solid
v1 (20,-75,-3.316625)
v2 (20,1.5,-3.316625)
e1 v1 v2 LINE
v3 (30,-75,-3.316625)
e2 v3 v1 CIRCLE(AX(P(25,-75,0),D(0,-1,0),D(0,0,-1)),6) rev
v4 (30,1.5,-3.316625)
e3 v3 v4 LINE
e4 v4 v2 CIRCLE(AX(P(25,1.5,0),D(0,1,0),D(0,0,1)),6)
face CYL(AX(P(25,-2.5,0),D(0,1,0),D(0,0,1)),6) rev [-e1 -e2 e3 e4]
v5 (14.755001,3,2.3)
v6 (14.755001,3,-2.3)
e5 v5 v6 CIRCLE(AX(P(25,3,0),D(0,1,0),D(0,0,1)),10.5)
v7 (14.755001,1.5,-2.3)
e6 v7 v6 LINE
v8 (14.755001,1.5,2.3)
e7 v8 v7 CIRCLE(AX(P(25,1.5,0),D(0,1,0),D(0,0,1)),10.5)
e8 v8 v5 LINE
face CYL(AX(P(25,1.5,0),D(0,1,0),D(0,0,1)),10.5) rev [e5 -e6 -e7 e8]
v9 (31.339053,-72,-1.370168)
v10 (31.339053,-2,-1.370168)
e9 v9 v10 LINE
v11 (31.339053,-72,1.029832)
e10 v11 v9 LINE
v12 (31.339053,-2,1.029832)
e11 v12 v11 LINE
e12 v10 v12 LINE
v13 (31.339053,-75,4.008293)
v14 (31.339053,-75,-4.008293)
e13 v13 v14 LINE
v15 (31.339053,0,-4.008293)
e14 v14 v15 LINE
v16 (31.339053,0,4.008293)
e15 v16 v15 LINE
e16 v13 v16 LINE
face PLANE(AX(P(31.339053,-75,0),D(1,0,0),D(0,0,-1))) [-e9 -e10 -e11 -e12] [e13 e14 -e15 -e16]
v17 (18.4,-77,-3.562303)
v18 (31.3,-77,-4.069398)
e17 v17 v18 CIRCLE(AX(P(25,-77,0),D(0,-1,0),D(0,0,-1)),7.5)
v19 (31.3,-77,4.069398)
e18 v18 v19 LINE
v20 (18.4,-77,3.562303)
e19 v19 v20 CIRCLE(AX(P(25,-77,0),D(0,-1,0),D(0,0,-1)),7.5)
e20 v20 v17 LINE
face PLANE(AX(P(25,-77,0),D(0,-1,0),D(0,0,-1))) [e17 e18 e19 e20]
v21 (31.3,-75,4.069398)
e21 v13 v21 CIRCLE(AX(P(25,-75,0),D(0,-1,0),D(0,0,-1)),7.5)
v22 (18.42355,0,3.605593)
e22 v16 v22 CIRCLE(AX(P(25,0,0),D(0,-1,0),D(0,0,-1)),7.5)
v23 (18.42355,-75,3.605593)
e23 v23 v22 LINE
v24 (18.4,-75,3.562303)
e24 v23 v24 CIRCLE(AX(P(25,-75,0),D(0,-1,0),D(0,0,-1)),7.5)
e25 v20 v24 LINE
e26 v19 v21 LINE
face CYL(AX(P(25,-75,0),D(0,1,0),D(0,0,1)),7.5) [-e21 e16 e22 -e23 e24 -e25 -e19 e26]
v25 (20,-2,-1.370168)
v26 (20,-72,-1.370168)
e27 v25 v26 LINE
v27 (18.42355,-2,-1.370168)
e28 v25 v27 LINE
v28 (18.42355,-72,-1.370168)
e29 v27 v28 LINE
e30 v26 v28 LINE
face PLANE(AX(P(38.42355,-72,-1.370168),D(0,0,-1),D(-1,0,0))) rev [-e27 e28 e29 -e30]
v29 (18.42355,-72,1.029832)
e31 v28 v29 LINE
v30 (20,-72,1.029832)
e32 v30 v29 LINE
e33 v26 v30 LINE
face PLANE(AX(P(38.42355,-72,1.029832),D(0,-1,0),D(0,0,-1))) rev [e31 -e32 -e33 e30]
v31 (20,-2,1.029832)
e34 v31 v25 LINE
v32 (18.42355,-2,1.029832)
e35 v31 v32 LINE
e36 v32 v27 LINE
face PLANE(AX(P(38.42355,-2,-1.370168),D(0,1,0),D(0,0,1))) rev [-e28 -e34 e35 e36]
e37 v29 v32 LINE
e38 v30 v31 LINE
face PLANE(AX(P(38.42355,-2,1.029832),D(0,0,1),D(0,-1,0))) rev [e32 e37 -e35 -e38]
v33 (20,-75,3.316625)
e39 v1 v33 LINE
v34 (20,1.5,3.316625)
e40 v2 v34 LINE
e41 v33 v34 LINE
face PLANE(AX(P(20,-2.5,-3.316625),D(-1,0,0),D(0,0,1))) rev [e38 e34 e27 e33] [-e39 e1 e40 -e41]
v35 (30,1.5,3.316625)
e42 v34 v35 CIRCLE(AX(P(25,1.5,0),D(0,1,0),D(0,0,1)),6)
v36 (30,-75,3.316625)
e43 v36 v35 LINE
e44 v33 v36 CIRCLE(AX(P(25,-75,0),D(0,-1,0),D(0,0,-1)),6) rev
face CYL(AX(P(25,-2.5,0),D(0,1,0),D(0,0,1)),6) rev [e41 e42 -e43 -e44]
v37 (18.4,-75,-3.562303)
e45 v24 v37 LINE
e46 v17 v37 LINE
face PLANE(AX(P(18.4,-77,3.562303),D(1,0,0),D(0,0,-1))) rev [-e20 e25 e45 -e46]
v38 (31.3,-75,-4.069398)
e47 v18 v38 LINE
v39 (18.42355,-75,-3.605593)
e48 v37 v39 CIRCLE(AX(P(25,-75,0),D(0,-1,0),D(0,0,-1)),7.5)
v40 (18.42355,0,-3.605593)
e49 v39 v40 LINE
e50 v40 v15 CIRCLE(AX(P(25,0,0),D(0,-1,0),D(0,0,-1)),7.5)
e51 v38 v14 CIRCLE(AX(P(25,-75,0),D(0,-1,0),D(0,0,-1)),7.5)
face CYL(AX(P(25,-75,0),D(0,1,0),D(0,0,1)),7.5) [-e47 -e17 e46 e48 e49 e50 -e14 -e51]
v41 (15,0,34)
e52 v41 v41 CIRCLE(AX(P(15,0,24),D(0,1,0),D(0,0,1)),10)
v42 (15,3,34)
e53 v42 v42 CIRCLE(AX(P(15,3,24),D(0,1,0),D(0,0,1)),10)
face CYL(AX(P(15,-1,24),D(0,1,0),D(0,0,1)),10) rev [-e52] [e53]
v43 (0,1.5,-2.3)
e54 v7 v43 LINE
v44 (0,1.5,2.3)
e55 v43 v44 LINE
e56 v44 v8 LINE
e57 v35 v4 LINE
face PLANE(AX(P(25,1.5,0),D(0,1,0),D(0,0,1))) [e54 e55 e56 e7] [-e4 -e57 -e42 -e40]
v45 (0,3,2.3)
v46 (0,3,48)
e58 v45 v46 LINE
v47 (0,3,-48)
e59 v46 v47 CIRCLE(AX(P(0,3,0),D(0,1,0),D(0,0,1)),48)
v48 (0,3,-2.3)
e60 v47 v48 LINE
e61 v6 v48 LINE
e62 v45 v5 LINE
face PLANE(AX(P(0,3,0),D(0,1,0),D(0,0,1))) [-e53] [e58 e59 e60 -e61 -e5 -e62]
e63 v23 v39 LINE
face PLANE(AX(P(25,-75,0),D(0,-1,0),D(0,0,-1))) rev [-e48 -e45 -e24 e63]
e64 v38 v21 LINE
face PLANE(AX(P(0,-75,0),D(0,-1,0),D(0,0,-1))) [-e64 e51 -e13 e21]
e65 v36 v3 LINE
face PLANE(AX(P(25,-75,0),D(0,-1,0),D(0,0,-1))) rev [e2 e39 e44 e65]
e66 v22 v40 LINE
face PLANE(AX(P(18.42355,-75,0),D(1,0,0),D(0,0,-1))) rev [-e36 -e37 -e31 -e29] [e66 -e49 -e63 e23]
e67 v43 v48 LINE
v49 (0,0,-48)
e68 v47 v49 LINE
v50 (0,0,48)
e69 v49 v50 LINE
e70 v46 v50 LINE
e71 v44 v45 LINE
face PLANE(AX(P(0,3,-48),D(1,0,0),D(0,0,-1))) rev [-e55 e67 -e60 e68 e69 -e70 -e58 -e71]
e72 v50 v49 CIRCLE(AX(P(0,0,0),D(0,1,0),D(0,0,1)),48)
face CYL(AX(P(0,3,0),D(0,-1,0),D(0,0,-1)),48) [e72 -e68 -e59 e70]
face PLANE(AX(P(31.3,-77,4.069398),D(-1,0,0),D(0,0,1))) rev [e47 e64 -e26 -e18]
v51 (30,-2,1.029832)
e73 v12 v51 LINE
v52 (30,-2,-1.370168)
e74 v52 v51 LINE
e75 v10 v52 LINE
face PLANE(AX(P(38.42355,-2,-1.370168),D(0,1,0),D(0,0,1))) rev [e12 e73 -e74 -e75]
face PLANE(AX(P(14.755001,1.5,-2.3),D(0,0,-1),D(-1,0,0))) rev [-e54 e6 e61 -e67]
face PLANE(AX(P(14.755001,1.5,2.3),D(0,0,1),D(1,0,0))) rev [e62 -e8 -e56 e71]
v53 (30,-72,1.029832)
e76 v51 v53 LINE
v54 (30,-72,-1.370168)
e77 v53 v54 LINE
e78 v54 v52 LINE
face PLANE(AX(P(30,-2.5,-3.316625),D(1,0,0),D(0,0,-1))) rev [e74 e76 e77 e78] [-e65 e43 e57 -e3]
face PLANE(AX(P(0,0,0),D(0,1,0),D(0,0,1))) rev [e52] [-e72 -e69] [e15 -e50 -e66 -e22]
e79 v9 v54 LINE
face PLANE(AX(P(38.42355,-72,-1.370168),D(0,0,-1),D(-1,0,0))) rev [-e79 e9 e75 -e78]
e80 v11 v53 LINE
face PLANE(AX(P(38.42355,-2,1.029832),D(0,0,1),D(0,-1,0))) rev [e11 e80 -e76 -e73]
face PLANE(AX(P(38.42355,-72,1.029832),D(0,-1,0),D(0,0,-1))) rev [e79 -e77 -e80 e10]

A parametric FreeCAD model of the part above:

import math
import FreeCAD as App
import Part
import Sketcher
from FreeCAD import Vector

doc = App.newDocument("Part")
params = doc.addObject("Spreadsheet::Sheet", "Params")
for row, (alias, value) in enumerate([
    ("sketch1_radius", "48 mm"),
    ("pad1_length", "3 mm"),
    ("sketch2_radius", "10.5 mm"),
    ("sketch2_height", "4.6 mm"),
    ("pocket1_length", "1.5 mm"),
    ("sketch3_radius", "6 mm"),
    ("pocket2_length", "4 mm"),
    ("sketch4_radius", "6 mm"),
    ("sketch4_radius2", "7.5 mm"),
    ("pad2_length", "75 mm"),
    ("sketch5_radius", "7.5 mm"),
    ("pad3_length", "2 mm"),
    ("sketch6_width", "70 mm"),
    ("sketch6_height", "2.4 mm"),
    ("pocket3_length", "20 mm"),
    ("sketch7_diameter", "20 mm"),
    ("pocket4_length", "4 mm"),
], start=1):
    params.set(f"A{row}", alias)
    params.set(f"B{row}", "=" + value)
    params.setAlias(f"B{row}", alias)

body = doc.addObject("PartDesign::Body", "Body")

# Sketch on XZ plane
sketch1 = body.newObject("Sketcher::SketchObject", "Sketch")
sketch1.AttachmentSupport = (doc.getObject("XZ_Plane"), [""])
sketch1.MapMode = "FlatFace"
sketch1.addGeometry(Part.LineSegment(Vector(0, -48, 0), Vector(0, 48, 0)), False)
sketch1.addGeometry(Part.ArcOfCircle(Part.Circle(Vector(0, 0, 0), Vector(0, 0, 1), 48), math.radians(-90), math.radians(90)), False)
sketch1.addConstraint(Sketcher.Constraint("Coincident", 0, 1, 1, 1))
sketch1.addConstraint(Sketcher.Constraint("Coincident", 1, 2, 0, 2))
sketch1.addConstraint(Sketcher.Constraint("Vertical", 0))
sketch1.addConstraint(Sketcher.Constraint("Coincident", 1, 3, -1, 1))
sketch1.addConstraint(Sketcher.Constraint("PointOnObject", 0, 1, -2))
sketch1.addConstraint(Sketcher.Constraint("Radius", 1, 48.0))
sketch1.setExpression("Constraints[5]", "Params.sketch1_radius")
pad1 = body.newObject("PartDesign::Pad", "Pad")
pad1.Profile = sketch1
pad1.setExpression("Length", "Params.pad1_length")
pad1.Reversed = True

# Sketch on XZ plane
sketch2 = body.newObject("Sketcher::SketchObject", "Sketch001")
sketch2.AttachmentSupport = (doc.getObject("XZ_Plane"), [""])
sketch2.MapMode = "FlatFace"
sketch2.AttachmentOffset = App.Placement(Vector(0, 0, -3), App.Rotation())
sketch2.addGeometry(Part.LineSegment(Vector(14.8, -2.3, 0), Vector(0, -2.3, 0)), False)
sketch2.addGeometry(Part.LineSegment(Vector(0, -2.3, 0), Vector(0, 2.3, 0)), False)
sketch2.addGeometry(Part.LineSegment(Vector(0, 2.3, 0), Vector(14.8, 2.3, 0)), False)
sketch2.addGeometry(Part.ArcOfCircle(Part.Circle(Vector(25, 0, 0), Vector(0, 0, 1), 10.5), math.radians(-167), math.radians(167)), False)
sketch2.addConstraint(Sketcher.Constraint("Coincident", 0, 2, 1, 1))
sketch2.addConstraint(Sketcher.Constraint("Coincident", 1, 2, 2, 1))
sketch2.addConstraint(Sketcher.Constraint("Coincident", 2, 2, 3, 2))
sketch2.addConstraint(Sketcher.Constraint("Coincident", 3, 1, 0, 1))
sketch2.addConstraint(Sketcher.Constraint("Horizontal", 0))
sketch2.addConstraint(Sketcher.Constraint("Vertical", 1))
sketch2.addConstraint(Sketcher.Constraint("Horizontal", 2))
sketch2.addConstraint(Sketcher.Constraint("Symmetric", 0, 2, 1, 2, -1, 1))
sketch2.addConstraint(Sketcher.Constraint("PointOnObject", 3, 3, -1))
sketch2.addConstraint(Sketcher.Constraint("Radius", 3, 10.5))
sketch2.addConstraint(Sketcher.Constraint("DistanceY", 1, 1, 1, 2, 4.6))
sketch2.addConstraint(Sketcher.Constraint("DistanceX", -1, 1, 3, 3, 25.0))
sketch2.setExpression("Constraints[9]", "Params.sketch2_radius")
sketch2.setExpression("Constraints[10]", "Params.sketch2_height")
pocket1 = body.newObject("PartDesign::Pocket", "Pocket")
pocket1.Profile = sketch2
pocket1.setExpression("Length", "Params.pocket1_length")
pocket1.Reversed = True

# Sketch on XZ plane
sketch3 = body.newObject("Sketcher::SketchObject", "Sketch002")
sketch3.AttachmentSupport = (doc.getObject("XZ_Plane"), [""])
sketch3.MapMode = "FlatFace"
sketch3.AttachmentOffset = App.Placement(Vector(0, 0, -1.5), App.Rotation())
sketch3.addGeometry(Part.LineSegment(Vector(20, -3, 0), Vector(20, 3, 0)), False)
sketch3.addGeometry(Part.ArcOfCircle(Part.Circle(Vector(25, 0, 0), Vector(0, 0, 1), 6), math.radians(34), math.radians(146)), False)
sketch3.addGeometry(Part.LineSegment(Vector(30, 3, 0), Vector(30, -3, 0)), False)
sketch3.addGeometry(Part.ArcOfCircle(Part.Circle(Vector(25, 0, 0), Vector(0, 0, 1), 6), math.radians(-146), math.radians(-34)), False)
sketch3.addConstraint(Sketcher.Constraint("Coincident", 0, 2, 1, 2))
sketch3.addConstraint(Sketcher.Constraint("Coincident", 1, 1, 2, 1))
sketch3.addConstraint(Sketcher.Constraint("Coincident", 2, 2, 3, 2))
sketch3.addConstraint(Sketcher.Constraint("Coincident", 3, 1, 0, 1))
sketch3.addConstraint(Sketcher.Constraint("Vertical", 0))
sketch3.addConstraint(Sketcher.Constraint("Vertical", 2))
sketch3.addConstraint(Sketcher.Constraint("Coincident", 3, 3, 1, 3))
sketch3.addConstraint(Sketcher.Constraint("Equal", 1, 3))
sketch3.addConstraint(Sketcher.Constraint("PointOnObject", 1, 3, -1))
sketch3.addConstraint(Sketcher.Constraint("Horizontal", 0, 2, 1, 1))
sketch3.addConstraint(Sketcher.Constraint("Radius", 1, 6.0))
sketch3.addConstraint(Sketcher.Constraint("DistanceX", -1, 1, 1, 3, 25.0))
sketch3.addConstraint(Sketcher.Constraint("DistanceX", -1, 1, 0, 2, 20.0))
sketch3.setExpression("Constraints[10]", "Params.sketch3_radius")
pocket2 = body.newObject("PartDesign::Pocket", "Pocket001")
pocket2.Profile = sketch3
pocket2.setExpression("Length", "Params.pocket2_length")
pocket2.Reversed = True

# Sketch on XZ plane
sketch4 = body.newObject("Sketcher::SketchObject", "Sketch003")
sketch4.AttachmentSupport = (doc.getObject("XZ_Plane"), [""])
sketch4.MapMode = "FlatFace"
sketch4.addGeometry(Part.LineSegment(Vector(18, 4, 0), Vector(18, -4, 0)), False)
sketch4.addGeometry(Part.ArcOfCircle(Part.Circle(Vector(25, 0, 0), Vector(0, 0, 1), 7), math.radians(-151), math.radians(-32)), False)
sketch4.addGeometry(Part.LineSegment(Vector(31, -4, 0), Vector(31, 4, 0)), False)
sketch4.addGeometry(Part.ArcOfCircle(Part.Circle(Vector(25, 0, 0), Vector(0, 0, 1), 7), math.radians(32), math.radians(151)), False)
sketch4.addGeometry(Part.LineSegment(Vector(20, -3, 0), Vector(20, 3, 0)), False)
sketch4.addGeometry(Part.ArcOfCircle(Part.Circle(Vector(25, 0, 0), Vector(0, 0, 1), 6), math.radians(34), math.radians(146)), False)
sketch4.addGeometry(Part.LineSegment(Vector(30, 3, 0), Vector(30, -3, 0)), False)
sketch4.addGeometry(Part.ArcOfCircle(Part.Circle(Vector(25, 0, 0), Vector(0, 0, 1), 6), math.radians(-146), math.radians(-34)), False)
sketch4.addConstraint(Sketcher.Constraint("Coincident", 0, 2, 1, 1))
sketch4.addConstraint(Sketcher.Constraint("Coincident", 1, 2, 2, 1))
sketch4.addConstraint(Sketcher.Constraint("Coincident", 2, 2, 3, 1))
sketch4.addConstraint(Sketcher.Constraint("Coincident", 3, 2, 0, 1))
sketch4.addConstraint(Sketcher.Constraint("Coincident", 4, 2, 5, 2))
sketch4.addConstraint(Sketcher.Constraint("Coincident", 5, 1, 6, 1))
sketch4.addConstraint(Sketcher.Constraint("Coincident", 6, 2, 7, 2))
sketch4.addConstraint(Sketcher.Constraint("Coincident", 7, 1, 4, 1))
sketch4.addConstraint(Sketcher.Constraint("Vertical", 0))
sketch4.addConstraint(Sketcher.Constraint("Vertical", 2))
sketch4.addConstraint(Sketcher.Constraint("Vertical", 4))
sketch4.addConstraint(Sketcher.Constraint("Vertical", 6))
sketch4.addConstraint(Sketcher.Constraint("Coincident", 3, 3, 1, 3))
sketch4.addConstraint(Sketcher.Constraint("Coincident", 5, 3, 1, 3))
sketch4.addConstraint(Sketcher.Constraint("Coincident", 7, 3, 1, 3))
sketch4.addConstraint(Sketcher.Constraint("Equal", 1, 3))
sketch4.addConstraint(Sketcher.Constraint("Equal", 5, 7))
sketch4.addConstraint(Sketcher.Constraint("PointOnObject", 1, 3, -1))
sketch4.addConstraint(Sketcher.Constraint("Horizontal", 4, 2, 5, 1))
sketch4.addConstraint(Sketcher.Constraint("Radius", 5, 6.0))
sketch4.addConstraint(Sketcher.Constraint("Radius", 1, 7.5))
sketch4.addConstraint(Sketcher.Constraint("DistanceX", -1, 1, 1, 3, 25.0))
sketch4.addConstraint(Sketcher.Constraint("DistanceX", -1, 1, 4, 2, 20.0))
sketch4.addConstraint(Sketcher.Constraint("DistanceY", 1, 2, 0, 2, 0.402699))
sketch4.addConstraint(Sketcher.Constraint("DistanceY", 0, 2, 0, 1, 7.211186))
sketch4.setExpression("Constraints[19]", "Params.sketch4_radius")
sketch4.setExpression("Constraints[20]", "Params.sketch4_radius2")
pad2 = body.newObject("PartDesign::Pad", "Pad001")
pad2.Profile = sketch4
pad2.setExpression("Length", "Params.pad2_length")

# Sketch on XZ plane
sketch5 = body.newObject("Sketcher::SketchObject", "Sketch004")
sketch5.AttachmentSupport = (doc.getObject("XZ_Plane"), [""])
sketch5.MapMode = "FlatFace"
sketch5.AttachmentOffset = App.Placement(Vector(0, 0, 75), App.Rotation())
sketch5.addGeometry(Part.LineSegment(Vector(18, 4, 0), Vector(18, -4, 0)), False)
sketch5.addGeometry(Part.ArcOfCircle(Part.Circle(Vector(25, 0, 0), Vector(0, 0, 1), 8), math.radians(-152), math.radians(-33)), False)
sketch5.addGeometry(Part.LineSegment(Vector(31, -4, 0), Vector(31, 4, 0)), False)
sketch5.addGeometry(Part.ArcOfCircle(Part.Circle(Vector(25, 0, 0), Vector(0, 0, 1), 8), math.radians(33), math.radians(152)), False)
sketch5.addConstraint(Sketcher.Constraint("Coincident", 0, 2, 1, 1))
sketch5.addConstraint(Sketcher.Constraint("Coincident", 1, 2, 2, 1))
sketch5.addConstraint(Sketcher.Constraint("Coincident", 2, 2, 3, 1))
sketch5.addConstraint(Sketcher.Constraint("Coincident", 3, 2, 0, 1))
sketch5.addConstraint(Sketcher.Constraint("Vertical", 0))
sketch5.addConstraint(Sketcher.Constraint("Vertical", 2))
sketch5.addConstraint(Sketcher.Constraint("Coincident", 3, 3, 1, 3))
sketch5.addConstraint(Sketcher.Constraint("Equal", 1, 3))
sketch5.addConstraint(Sketcher.Constraint("PointOnObject", 1, 3, -1))
sketch5.addConstraint(Sketcher.Constraint("Radius", 1, 7.5))
sketch5.addConstraint(Sketcher.Constraint("DistanceX", -1, 1, 1, 3, 25.0))
sketch5.addConstraint(Sketcher.Constraint("DistanceX", -1, 1, 0, 2, 18.4))
sketch5.addConstraint(Sketcher.Constraint("DistanceX", -1, 1, 1, 2, 31.3))
sketch5.setExpression("Constraints[9]", "Params.sketch5_radius")
pad3 = body.newObject("PartDesign::Pad", "Pad002")
pad3.Profile = sketch5
pad3.setExpression("Length", "Params.pad3_length")

# Sketch on YZ plane
sketch6 = body.newObject("Sketcher::SketchObject", "Sketch005")
sketch6.AttachmentSupport = (doc.getObject("YZ_Plane"), [""])
sketch6.MapMode = "FlatFace"
sketch6.AttachmentOffset = App.Placement(Vector(0, 0, 18.42355), App.Rotation())
sketch6.addGeometry(Part.LineSegment(Vector(-2, -1.4, 0), Vector(-72, -1.4, 0)), False)
sketch6.addGeometry(Part.LineSegment(Vector(-72, -1.4, 0), Vector(-72, 1, 0)), False)
sketch6.addGeometry(Part.LineSegment(Vector(-72, 1, 0), Vector(-2, 1, 0)), False)
sketch6.addGeometry(Part.LineSegment(Vector(-2, 1, 0), Vector(-2, -1.4, 0)), False)
sketch6.addConstraint(Sketcher.Constraint("Coincident", 0, 2, 1, 1))
sketch6.addConstraint(Sketcher.Constraint("Coincident", 1, 2, 2, 1))
sketch6.addConstraint(Sketcher.Constraint("Coincident", 2, 2, 3, 1))
sketch6.addConstraint(Sketcher.Constraint("Coincident", 3, 2, 0, 1))
sketch6.addConstraint(Sketcher.Constraint("Horizontal", 0))
sketch6.addConstraint(Sketcher.Constraint("Vertical", 1))
sketch6.addConstraint(Sketcher.Constraint("Horizontal", 2))
sketch6.addConstraint(Sketcher.Constraint("Vertical", 3))
sketch6.addConstraint(Sketcher.Constraint("DistanceX", 0, 2, 0, 1, 70.0))
sketch6.addConstraint(Sketcher.Constraint("DistanceY", 1, 1, 1, 2, 2.4))
sketch6.addConstraint(Sketcher.Constraint("DistanceX", 0, 2, -1, 1, 72.0))
sketch6.addConstraint(Sketcher.Constraint("DistanceY", 0, 2, -1, 1, 1.370168))
sketch6.setExpression("Constraints[8]", "Params.sketch6_width")
sketch6.setExpression("Constraints[9]", "Params.sketch6_height")
pocket3 = body.newObject("PartDesign::Pocket", "Pocket002")
pocket3.Profile = sketch6
pocket3.setExpression("Length", "Params.pocket3_length")
pocket3.Reversed = True

# Sketch on XZ plane
sketch7 = body.newObject("Sketcher::SketchObject", "Sketch006")
sketch7.AttachmentSupport = (doc.getObject("XZ_Plane"), [""])
sketch7.MapMode = "FlatFace"
sketch7.AttachmentOffset = App.Placement(Vector(0, 0, -3), App.Rotation())
sketch7.addGeometry(Part.Circle(Vector(15, 24, 0), Vector(0, 0, 1), 10), False)
sketch7.addConstraint(Sketcher.Constraint("Diameter", 0, 20.0))
sketch7.addConstraint(Sketcher.Constraint("DistanceX", -1, 1, 0, 3, 15.0))
sketch7.addConstraint(Sketcher.Constraint("DistanceY", -1, 1, 0, 3, 24.0))
sketch7.setExpression("Constraints[0]", "Params.sketch7_diameter")
pocket4 = body.newObject("PartDesign::Pocket", "Pocket003")
pocket4.Profile = sketch7
pocket4.setExpression("Length", "Params.pocket4_length")
pocket4.Reversed = True

doc.recompute()
